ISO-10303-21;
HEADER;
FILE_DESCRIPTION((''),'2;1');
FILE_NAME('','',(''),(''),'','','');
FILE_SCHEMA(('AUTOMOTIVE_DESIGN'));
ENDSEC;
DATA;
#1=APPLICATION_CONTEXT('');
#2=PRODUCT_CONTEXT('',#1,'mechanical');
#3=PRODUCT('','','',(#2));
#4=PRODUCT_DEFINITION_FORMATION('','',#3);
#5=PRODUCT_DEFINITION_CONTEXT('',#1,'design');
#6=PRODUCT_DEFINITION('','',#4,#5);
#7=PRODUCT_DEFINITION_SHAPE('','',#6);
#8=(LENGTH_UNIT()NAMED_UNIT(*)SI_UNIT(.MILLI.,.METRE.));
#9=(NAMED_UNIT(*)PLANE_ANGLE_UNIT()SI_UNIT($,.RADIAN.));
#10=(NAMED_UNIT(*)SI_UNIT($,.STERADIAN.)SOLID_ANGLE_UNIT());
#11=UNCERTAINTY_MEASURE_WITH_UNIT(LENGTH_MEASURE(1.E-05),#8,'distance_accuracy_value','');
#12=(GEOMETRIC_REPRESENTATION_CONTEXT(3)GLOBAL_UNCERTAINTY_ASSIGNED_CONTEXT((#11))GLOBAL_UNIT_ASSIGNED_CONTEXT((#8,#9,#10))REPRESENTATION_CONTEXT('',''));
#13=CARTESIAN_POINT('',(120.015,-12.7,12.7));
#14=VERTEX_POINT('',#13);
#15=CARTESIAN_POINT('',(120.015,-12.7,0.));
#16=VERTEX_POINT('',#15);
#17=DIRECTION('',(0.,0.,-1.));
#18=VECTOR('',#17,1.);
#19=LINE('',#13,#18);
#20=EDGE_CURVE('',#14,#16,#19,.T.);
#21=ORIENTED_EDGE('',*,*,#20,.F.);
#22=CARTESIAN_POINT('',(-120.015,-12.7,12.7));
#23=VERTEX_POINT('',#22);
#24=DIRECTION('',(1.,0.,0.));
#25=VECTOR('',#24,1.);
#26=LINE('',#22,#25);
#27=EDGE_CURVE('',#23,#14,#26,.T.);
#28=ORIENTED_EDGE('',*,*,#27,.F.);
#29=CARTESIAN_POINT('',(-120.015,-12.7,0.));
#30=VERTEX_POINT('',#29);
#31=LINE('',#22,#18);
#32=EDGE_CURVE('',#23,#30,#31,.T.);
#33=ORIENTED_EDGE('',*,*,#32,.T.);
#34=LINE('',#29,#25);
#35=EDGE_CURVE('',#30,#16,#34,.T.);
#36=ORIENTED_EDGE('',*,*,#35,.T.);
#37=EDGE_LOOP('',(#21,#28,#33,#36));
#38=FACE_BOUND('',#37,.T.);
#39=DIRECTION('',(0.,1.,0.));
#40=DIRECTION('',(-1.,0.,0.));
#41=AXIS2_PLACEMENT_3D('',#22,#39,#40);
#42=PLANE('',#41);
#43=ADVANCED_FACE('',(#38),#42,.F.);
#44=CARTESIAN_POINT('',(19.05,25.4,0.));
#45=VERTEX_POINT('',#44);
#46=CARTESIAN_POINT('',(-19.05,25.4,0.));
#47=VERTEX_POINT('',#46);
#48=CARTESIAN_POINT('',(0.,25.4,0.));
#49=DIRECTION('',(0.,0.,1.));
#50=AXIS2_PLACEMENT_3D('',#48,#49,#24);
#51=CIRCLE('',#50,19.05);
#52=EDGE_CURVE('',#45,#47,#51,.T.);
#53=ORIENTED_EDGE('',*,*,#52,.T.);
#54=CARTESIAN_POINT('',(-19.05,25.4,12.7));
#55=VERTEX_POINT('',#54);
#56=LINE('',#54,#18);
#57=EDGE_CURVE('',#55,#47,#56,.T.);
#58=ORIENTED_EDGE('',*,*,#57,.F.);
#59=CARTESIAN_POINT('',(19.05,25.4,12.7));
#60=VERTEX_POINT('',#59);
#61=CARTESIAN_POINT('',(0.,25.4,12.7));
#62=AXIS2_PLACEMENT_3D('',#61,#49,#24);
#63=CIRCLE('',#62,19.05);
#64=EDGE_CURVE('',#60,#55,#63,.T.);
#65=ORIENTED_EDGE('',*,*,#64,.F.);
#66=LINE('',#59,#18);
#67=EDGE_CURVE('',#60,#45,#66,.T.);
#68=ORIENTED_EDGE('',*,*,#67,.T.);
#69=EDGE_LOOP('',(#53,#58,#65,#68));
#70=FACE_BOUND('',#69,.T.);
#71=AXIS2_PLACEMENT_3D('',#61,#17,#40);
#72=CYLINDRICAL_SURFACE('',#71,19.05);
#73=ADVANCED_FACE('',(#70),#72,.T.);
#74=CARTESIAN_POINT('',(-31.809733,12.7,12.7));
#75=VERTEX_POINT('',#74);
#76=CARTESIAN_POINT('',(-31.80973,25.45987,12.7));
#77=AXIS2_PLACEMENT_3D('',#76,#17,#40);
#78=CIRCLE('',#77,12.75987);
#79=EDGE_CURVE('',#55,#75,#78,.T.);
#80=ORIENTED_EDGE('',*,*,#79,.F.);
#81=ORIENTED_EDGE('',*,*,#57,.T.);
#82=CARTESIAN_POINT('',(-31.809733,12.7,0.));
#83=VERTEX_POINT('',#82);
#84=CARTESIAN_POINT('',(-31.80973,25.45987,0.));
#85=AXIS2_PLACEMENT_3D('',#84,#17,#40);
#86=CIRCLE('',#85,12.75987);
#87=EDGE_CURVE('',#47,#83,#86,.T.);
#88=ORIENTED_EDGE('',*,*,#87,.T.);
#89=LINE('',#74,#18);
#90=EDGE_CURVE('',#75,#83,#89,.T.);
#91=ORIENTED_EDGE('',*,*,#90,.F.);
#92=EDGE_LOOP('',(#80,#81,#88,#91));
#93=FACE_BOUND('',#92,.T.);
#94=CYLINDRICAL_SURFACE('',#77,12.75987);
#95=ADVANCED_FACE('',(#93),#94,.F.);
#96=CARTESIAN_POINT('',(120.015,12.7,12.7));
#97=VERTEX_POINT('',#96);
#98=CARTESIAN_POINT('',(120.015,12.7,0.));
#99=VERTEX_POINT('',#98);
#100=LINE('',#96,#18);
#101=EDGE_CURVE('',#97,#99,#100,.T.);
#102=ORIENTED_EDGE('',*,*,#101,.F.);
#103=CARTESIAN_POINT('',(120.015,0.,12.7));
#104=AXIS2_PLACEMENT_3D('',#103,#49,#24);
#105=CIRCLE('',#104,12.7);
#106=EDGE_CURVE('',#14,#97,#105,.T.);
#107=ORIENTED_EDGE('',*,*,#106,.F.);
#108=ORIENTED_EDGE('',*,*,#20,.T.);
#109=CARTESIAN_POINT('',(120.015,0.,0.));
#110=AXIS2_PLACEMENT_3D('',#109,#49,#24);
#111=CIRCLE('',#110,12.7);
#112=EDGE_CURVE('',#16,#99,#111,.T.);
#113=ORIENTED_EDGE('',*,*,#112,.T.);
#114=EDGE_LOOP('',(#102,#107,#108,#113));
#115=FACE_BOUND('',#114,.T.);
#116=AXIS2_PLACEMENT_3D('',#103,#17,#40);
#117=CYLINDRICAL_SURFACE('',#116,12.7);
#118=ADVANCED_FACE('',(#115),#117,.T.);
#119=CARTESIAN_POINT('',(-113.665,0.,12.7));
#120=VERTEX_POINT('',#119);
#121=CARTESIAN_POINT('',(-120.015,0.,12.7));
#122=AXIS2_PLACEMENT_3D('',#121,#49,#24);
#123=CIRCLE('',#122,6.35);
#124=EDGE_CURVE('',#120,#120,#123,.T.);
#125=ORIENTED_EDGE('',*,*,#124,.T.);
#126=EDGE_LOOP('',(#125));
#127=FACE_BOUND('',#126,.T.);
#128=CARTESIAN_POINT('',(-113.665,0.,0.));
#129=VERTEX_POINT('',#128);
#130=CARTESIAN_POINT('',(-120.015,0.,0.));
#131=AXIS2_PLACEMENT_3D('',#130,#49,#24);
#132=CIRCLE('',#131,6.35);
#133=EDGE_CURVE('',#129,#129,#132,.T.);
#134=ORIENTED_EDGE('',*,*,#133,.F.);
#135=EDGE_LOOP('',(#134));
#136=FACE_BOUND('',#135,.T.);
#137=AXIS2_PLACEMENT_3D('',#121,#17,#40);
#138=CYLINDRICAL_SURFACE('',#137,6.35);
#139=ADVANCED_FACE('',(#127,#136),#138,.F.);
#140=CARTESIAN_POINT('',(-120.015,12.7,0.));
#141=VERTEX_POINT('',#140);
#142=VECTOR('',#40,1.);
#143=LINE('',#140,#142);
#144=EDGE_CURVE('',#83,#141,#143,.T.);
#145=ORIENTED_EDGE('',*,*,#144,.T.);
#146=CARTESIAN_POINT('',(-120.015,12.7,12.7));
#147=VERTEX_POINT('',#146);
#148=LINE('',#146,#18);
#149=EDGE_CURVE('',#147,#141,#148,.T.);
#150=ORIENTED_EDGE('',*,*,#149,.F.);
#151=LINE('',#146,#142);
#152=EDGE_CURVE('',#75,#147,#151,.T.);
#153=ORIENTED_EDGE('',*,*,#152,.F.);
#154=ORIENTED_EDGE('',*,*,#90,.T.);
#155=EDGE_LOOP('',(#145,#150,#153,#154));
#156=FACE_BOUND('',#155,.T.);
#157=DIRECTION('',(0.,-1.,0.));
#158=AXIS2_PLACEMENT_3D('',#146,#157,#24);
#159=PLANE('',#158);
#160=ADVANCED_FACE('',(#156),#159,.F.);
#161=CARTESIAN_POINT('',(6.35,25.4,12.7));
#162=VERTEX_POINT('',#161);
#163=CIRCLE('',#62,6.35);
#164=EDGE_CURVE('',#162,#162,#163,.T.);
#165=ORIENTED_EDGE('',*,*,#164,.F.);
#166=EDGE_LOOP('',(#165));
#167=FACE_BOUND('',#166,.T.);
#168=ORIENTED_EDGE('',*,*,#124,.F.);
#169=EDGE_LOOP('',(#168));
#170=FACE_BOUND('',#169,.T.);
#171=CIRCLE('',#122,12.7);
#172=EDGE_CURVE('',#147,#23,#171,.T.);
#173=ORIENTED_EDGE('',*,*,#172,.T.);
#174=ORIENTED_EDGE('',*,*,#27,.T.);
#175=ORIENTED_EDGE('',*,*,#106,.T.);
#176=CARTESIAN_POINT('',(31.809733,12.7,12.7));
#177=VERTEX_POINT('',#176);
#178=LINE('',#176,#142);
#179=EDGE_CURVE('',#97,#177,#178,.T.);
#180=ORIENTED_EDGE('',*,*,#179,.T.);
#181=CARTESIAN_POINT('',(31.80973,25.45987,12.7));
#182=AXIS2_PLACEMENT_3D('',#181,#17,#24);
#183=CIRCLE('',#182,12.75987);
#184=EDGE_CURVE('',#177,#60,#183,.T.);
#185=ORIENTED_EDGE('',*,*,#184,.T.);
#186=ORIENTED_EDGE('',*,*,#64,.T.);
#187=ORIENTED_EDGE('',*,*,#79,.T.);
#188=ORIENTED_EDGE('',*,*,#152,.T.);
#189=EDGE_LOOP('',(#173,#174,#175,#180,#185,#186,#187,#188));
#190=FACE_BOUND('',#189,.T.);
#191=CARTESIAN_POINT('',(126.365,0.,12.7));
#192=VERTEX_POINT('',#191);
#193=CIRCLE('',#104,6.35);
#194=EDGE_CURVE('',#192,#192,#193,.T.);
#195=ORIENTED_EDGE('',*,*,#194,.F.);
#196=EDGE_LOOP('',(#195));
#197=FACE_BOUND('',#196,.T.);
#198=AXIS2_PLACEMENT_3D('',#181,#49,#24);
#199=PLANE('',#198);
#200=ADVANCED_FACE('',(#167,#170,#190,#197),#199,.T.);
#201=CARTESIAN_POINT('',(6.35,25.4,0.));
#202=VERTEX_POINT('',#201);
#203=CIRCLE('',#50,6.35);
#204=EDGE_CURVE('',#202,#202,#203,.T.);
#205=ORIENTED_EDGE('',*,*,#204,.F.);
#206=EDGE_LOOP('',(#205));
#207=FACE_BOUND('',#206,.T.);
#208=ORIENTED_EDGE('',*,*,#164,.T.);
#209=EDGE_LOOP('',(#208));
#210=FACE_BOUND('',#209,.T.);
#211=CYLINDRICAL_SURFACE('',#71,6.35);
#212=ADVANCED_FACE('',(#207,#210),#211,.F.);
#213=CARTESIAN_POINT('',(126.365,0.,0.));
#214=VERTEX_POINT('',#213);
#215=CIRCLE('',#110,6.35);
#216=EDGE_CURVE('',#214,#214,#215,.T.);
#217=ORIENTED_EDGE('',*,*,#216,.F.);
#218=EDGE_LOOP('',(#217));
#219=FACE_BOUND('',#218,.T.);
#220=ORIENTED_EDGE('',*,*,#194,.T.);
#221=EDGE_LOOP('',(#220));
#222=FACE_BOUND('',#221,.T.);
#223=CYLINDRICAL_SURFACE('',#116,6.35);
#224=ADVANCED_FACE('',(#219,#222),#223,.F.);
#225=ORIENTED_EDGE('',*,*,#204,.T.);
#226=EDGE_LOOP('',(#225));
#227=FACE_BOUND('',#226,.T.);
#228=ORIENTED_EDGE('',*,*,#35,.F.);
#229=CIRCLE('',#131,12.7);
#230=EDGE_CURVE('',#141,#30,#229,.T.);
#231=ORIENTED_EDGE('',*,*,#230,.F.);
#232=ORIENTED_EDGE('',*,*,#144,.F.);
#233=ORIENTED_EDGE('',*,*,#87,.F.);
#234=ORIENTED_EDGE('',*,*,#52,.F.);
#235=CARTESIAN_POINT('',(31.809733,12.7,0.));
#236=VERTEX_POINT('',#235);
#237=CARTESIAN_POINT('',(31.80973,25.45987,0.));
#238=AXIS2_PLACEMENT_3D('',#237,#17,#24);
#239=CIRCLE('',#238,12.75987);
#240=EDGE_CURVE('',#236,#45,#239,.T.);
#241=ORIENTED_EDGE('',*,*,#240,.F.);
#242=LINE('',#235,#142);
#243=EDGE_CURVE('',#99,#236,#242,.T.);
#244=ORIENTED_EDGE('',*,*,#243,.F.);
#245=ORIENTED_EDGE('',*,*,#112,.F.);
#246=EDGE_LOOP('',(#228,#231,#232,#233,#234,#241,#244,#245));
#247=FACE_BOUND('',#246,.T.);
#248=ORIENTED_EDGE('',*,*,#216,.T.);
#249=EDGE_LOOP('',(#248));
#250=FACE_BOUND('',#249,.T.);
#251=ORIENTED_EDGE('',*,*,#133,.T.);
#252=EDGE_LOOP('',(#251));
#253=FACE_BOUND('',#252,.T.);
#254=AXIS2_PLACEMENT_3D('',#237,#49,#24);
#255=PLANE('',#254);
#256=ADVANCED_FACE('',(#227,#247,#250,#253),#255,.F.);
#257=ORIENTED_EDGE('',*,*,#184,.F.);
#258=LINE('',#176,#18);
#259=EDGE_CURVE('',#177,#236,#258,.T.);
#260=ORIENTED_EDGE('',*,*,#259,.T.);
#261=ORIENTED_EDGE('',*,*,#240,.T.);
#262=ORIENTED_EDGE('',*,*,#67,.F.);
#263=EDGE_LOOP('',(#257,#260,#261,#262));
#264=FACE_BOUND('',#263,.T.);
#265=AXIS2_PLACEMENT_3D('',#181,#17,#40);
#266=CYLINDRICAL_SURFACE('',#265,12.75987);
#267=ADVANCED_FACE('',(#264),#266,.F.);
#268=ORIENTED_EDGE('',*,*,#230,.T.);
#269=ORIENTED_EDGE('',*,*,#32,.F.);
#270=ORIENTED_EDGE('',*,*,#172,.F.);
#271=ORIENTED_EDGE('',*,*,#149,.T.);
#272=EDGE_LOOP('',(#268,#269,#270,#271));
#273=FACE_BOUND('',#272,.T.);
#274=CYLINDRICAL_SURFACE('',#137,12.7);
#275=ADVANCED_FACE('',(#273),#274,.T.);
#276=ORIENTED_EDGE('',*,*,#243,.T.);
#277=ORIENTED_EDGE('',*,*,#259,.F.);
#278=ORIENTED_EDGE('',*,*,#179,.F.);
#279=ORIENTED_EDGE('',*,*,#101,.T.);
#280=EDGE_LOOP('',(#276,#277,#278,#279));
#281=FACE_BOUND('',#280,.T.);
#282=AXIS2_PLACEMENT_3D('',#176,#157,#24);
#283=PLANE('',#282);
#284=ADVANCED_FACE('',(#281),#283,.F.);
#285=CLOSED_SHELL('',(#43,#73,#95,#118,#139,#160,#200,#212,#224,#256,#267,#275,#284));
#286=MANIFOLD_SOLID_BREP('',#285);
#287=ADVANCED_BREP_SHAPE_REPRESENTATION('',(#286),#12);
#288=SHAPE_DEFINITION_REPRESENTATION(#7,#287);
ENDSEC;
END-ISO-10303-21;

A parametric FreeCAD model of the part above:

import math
import FreeCAD as App
import Part
import Sketcher

V = App.Vector
Q = App.Units.Quantity

doc = App.newDocument("Part")
body = doc.addObject("PartDesign::Body", "Body")

sketch1 = body.newObject("Sketcher::SketchObject", "Sketch")
sketch1.AttachmentSupport = (doc.getObject("XY_Plane"), [""])
sketch1.MapMode = "FlatFace"
sketch1.addGeometry([
    Part.LineSegment(V(-32, 13, 0), V(-120, 13, 0)),
    Part.ArcOfCircle(Part.Circle(V(-120, 0, 0), V(0, 0, 1), 13), math.radians(90), math.radians(270)),
    Part.LineSegment(V(-120, -13, 0), V(120, -13, 0)),
    Part.ArcOfCircle(Part.Circle(V(120, 0, 0), V(0, 0, 1), 13), math.radians(-90), math.radians(90)),
    Part.LineSegment(V(120, 13, 0), V(32, 13, 0)),
    Part.ArcOfCircle(Part.Circle(V(32, 25, 0), V(0, 0, 1), 13), math.radians(-180), math.radians(-90)),
    Part.ArcOfCircle(Part.Circle(V(0, 25, 0), V(0, 0, 1), 19), math.radians(0), math.radians(180)),
    Part.ArcOfCircle(Part.Circle(V(-32, 25, 0), V(0, 0, 1), 13), math.radians(-90), math.radians(0)),
    Part.Circle(V(120, 0, 0), V(0, 0, 1), 6),
    Part.Circle(V(-120, 0, 0), V(0, 0, 1), 6),
    Part.Circle(V(0, 25, 0), V(0, 0, 1), 6),
], False)
sketch1.addConstraint([
    Sketcher.Constraint("Tangent", 0, 2, 1, 1),
    Sketcher.Constraint("Tangent", 1, 2, 2, 1),
    Sketcher.Constraint("Tangent", 2, 2, 3, 1),
    Sketcher.Constraint("Tangent", 3, 2, 4, 1),
    Sketcher.Constraint("Tangent", 4, 2, 5, 2),
    Sketcher.Constraint("Coincident", 5, 1, 6, 1),
    Sketcher.Constraint("Coincident", 6, 2, 7, 2),
    Sketcher.Constraint("Tangent", 7, 1, 0, 1),
    Sketcher.Constraint("Horizontal", 0),
    Sketcher.Constraint("Horizontal", 2),
    Sketcher.Constraint("Horizontal", 4),
    Sketcher.Constraint("Coincident", 8, 3, 3, 3),
    Sketcher.Constraint("Coincident", 9, 3, 1, 3),
    Sketcher.Constraint("Coincident", 10, 3, 6, 3),
    Sketcher.Constraint("Equal", 1, 3),
    Sketcher.Constraint("Equal", 5, 7),
    Sketcher.Constraint("Equal", 8, 9),
    Sketcher.Constraint("Equal", 9, 10),
    Sketcher.Constraint("Symmetric", 1, 3, 3, 3, -1, 1),
    Sketcher.Constraint("Symmetric", 5, 1, 6, 2, -2),
    Sketcher.Constraint("Horizontal", 10, 3, 5, 1),
    Sketcher.Constraint("Diameter", 8, Q("0.5 in")),
    Sketcher.Constraint("Radius", 1, Q("0.5 in")),
    Sketcher.Constraint("Radius", 6, Q("0.75 in")),
    Sketcher.Constraint("DistanceY", -1, 1, 6, 3, Q("1 in")),
    Sketcher.Constraint("DistanceX", 2, 1, 2, 2, Q("9.45 in")),
    Sketcher.Constraint("Radius", 5, 12.75987),
])
pad1 = body.newObject("PartDesign::Pad", "Pad")
pad1.Profile = sketch1
pad1.Length = Q("0.5 in")

doc.recompute()
